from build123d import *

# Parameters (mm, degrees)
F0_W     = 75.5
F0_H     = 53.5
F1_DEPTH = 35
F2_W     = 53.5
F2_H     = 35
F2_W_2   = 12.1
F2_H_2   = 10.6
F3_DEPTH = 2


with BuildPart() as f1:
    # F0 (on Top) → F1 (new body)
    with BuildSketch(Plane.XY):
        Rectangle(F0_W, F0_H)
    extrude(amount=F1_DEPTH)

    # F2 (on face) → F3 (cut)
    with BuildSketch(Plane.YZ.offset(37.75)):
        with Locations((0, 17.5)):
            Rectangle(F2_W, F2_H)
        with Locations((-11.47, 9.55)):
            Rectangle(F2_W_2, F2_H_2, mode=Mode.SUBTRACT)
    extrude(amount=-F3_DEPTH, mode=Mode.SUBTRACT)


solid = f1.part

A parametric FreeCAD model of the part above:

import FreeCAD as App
import Part
import Sketcher

doc = App.newDocument("Part")
params = doc.addObject("Spreadsheet::Sheet", "Params")
for row, (alias, value) in enumerate([
    ("sketch1_width", "75.5 mm"),
    ("sketch1_height", "53.5 mm"),
    ("pad1_length", "35 mm"),
    ("sketch2_height", "35 mm"),
    ("sketch2_width", "53.5 mm"),
    ("sketch2_width2", "12.1 mm"),
    ("sketch2_height2", "10.6 mm"),
    ("pocket1_length", "2 mm"),
], start=1):
    params.set(f"A{row}", alias)
    params.set(f"B{row}", "=" + value)
    params.setAlias(f"B{row}", alias)

body = doc.addObject("PartDesign::Body", "Body")

# Sketch on XY plane
sketch1 = body.newObject("Sketcher::SketchObject", "Sketch")
sketch1.AttachmentSupport = (doc.getObject("XY_Plane"), [""])
sketch1.MapMode = "FlatFace"
sketch1.addGeometry(Part.LineSegment(App.Vector(-38, 27, 0), App.Vector(-38, -27, 0)), False)
sketch1.addGeometry(Part.LineSegment(App.Vector(-38, -27, 0), App.Vector(38, -27, 0)), False)
sketch1.addGeometry(Part.LineSegment(App.Vector(38, -27, 0), App.Vector(38, 27, 0)), False)
sketch1.addGeometry(Part.LineSegment(App.Vector(38, 27, 0), App.Vector(-38, 27, 0)), False)
sketch1.addConstraint(Sketcher.Constraint("Coincident", 0, 2, 1, 1))
sketch1.addConstraint(Sketcher.Constraint("Coincident", 1, 2, 2, 1))
sketch1.addConstraint(Sketcher.Constraint("Coincident", 2, 2, 3, 1))
sketch1.addConstraint(Sketcher.Constraint("Coincident", 3, 2, 0, 1))
sketch1.addConstraint(Sketcher.Constraint("Vertical", 0))
sketch1.addConstraint(Sketcher.Constraint("Horizontal", 1))
sketch1.addConstraint(Sketcher.Constraint("Vertical", 2))
sketch1.addConstraint(Sketcher.Constraint("Horizontal", 3))
sketch1.addConstraint(Sketcher.Constraint("Symmetric", 0, 2, 2, 2, -1, 1))
sketch1.addConstraint(Sketcher.Constraint("DistanceX", 1, 1, 1, 2, 75.5))
sketch1.addConstraint(Sketcher.Constraint("DistanceY", 0, 2, 0, 1, 53.5))
sketch1.setExpression("Constraints[9]", "Params.sketch1_width")
sketch1.setExpression("Constraints[10]", "Params.sketch1_height")
pad1 = body.newObject("PartDesign::Pad", "Pad")
pad1.Profile = sketch1
pad1.setExpression("Length", "Params.pad1_length")

# Sketch on YZ plane
sketch2 = body.newObject("Sketcher::SketchObject", "Sketch001")
sketch2.AttachmentSupport = (doc.getObject("YZ_Plane"), [""])
sketch2.MapMode = "FlatFace"
sketch2.AttachmentOffset = App.Placement(App.Vector(0, 0, 37.75), App.Rotation())
sketch2.addGeometry(Part.LineSegment(App.Vector(-27, 35, 0), App.Vector(-27, 0, 0)), False)
sketch2.addGeometry(Part.LineSegment(App.Vector(-27, 0, 0), App.Vector(27, 0, 0)), False)
sketch2.addGeometry(Part.LineSegment(App.Vector(27, 0, 0), App.Vector(27, 35, 0)), False)
sketch2.addGeometry(Part.LineSegment(App.Vector(27, 35, 0), App.Vector(-27, 35, 0)), False)
sketch2.addGeometry(Part.LineSegment(App.Vector(-5, 4, 0), App.Vector(-18, 4, 0)), False)
sketch2.addGeometry(Part.LineSegment(App.Vector(-18, 4, 0), App.Vector(-18, 15, 0)), False)
sketch2.addGeometry(Part.LineSegment(App.Vector(-18, 15, 0), App.Vector(-5, 15, 0)), False)
sketch2.addGeometry(Part.LineSegment(App.Vector(-5, 15, 0), App.Vector(-5, 4, 0)), False)
sketch2.addConstraint(Sketcher.Constraint("Coincident", 0, 2, 1, 1))
sketch2.addConstraint(Sketcher.Constraint("Coincident", 1, 2, 2, 1))
sketch2.addConstraint(Sketcher.Constraint("Coincident", 2, 2, 3, 1))
sketch2.addConstraint(Sketcher.Constraint("Coincident", 3, 2, 0, 1))
sketch2.addConstraint(Sketcher.Constraint("Coincident", 4, 2, 5, 1))
sketch2.addConstraint(Sketcher.Constraint("Coincident", 5, 2, 6, 1))
sketch2.addConstraint(Sketcher.Constraint("Coincident", 6, 2, 7, 1))
sketch2.addConstraint(Sketcher.Constraint("Coincident", 7, 2, 4, 1))
sketch2.addConstraint(Sketcher.Constraint("Vertical", 0))
sketch2.addConstraint(Sketcher.Constraint("Horizontal", 1))
sketch2.addConstraint(Sketcher.Constraint("Vertical", 2))
sketch2.addConstraint(Sketcher.Constraint("Horizontal", 3))
sketch2.addConstraint(Sketcher.Constraint("Horizontal", 4))
sketch2.addConstraint(Sketcher.Constraint("Vertical", 5))
sketch2.addConstraint(Sketcher.Constraint("Horizontal", 6))
sketch2.addConstraint(Sketcher.Constraint("Vertical", 7))
sketch2.addConstraint(Sketcher.Constraint("Symmetric", 0, 2, 1, 2, -1, 1))
sketch2.addConstraint(Sketcher.Constraint("DistanceY", 0, 2, 0, 1, 35.0))
sketch2.addConstraint(Sketcher.Constraint("DistanceX", 1, 1, 1, 2, 53.5))
sketch2.addConstraint(Sketcher.Constraint("DistanceX", 4, 2, 4, 1, 12.1))
sketch2.addConstraint(Sketcher.Constraint("DistanceY", 5, 1, 5, 2, 10.6))
sketch2.addConstraint(Sketcher.Constraint("DistanceX", 4, 2, -1, 1, 17.52))
sketch2.addConstraint(Sketcher.Constraint("DistanceY", -1, 1, 4, 2, 4.25))
sketch2.setExpression("Constraints[17]", "Params.sketch2_height")
sketch2.setExpression("Constraints[18]", "Params.sketch2_width")
sketch2.setExpression("Constraints[19]", "Params.sketch2_width2")
sketch2.setExpression("Constraints[20]", "Params.sketch2_height2")
pocket1 = body.newObject("PartDesign::Pocket", "Pocket")
pocket1.Profile = sketch2
pocket1.setExpression("Length", "Params.pocket1_length")

doc.recompute()
